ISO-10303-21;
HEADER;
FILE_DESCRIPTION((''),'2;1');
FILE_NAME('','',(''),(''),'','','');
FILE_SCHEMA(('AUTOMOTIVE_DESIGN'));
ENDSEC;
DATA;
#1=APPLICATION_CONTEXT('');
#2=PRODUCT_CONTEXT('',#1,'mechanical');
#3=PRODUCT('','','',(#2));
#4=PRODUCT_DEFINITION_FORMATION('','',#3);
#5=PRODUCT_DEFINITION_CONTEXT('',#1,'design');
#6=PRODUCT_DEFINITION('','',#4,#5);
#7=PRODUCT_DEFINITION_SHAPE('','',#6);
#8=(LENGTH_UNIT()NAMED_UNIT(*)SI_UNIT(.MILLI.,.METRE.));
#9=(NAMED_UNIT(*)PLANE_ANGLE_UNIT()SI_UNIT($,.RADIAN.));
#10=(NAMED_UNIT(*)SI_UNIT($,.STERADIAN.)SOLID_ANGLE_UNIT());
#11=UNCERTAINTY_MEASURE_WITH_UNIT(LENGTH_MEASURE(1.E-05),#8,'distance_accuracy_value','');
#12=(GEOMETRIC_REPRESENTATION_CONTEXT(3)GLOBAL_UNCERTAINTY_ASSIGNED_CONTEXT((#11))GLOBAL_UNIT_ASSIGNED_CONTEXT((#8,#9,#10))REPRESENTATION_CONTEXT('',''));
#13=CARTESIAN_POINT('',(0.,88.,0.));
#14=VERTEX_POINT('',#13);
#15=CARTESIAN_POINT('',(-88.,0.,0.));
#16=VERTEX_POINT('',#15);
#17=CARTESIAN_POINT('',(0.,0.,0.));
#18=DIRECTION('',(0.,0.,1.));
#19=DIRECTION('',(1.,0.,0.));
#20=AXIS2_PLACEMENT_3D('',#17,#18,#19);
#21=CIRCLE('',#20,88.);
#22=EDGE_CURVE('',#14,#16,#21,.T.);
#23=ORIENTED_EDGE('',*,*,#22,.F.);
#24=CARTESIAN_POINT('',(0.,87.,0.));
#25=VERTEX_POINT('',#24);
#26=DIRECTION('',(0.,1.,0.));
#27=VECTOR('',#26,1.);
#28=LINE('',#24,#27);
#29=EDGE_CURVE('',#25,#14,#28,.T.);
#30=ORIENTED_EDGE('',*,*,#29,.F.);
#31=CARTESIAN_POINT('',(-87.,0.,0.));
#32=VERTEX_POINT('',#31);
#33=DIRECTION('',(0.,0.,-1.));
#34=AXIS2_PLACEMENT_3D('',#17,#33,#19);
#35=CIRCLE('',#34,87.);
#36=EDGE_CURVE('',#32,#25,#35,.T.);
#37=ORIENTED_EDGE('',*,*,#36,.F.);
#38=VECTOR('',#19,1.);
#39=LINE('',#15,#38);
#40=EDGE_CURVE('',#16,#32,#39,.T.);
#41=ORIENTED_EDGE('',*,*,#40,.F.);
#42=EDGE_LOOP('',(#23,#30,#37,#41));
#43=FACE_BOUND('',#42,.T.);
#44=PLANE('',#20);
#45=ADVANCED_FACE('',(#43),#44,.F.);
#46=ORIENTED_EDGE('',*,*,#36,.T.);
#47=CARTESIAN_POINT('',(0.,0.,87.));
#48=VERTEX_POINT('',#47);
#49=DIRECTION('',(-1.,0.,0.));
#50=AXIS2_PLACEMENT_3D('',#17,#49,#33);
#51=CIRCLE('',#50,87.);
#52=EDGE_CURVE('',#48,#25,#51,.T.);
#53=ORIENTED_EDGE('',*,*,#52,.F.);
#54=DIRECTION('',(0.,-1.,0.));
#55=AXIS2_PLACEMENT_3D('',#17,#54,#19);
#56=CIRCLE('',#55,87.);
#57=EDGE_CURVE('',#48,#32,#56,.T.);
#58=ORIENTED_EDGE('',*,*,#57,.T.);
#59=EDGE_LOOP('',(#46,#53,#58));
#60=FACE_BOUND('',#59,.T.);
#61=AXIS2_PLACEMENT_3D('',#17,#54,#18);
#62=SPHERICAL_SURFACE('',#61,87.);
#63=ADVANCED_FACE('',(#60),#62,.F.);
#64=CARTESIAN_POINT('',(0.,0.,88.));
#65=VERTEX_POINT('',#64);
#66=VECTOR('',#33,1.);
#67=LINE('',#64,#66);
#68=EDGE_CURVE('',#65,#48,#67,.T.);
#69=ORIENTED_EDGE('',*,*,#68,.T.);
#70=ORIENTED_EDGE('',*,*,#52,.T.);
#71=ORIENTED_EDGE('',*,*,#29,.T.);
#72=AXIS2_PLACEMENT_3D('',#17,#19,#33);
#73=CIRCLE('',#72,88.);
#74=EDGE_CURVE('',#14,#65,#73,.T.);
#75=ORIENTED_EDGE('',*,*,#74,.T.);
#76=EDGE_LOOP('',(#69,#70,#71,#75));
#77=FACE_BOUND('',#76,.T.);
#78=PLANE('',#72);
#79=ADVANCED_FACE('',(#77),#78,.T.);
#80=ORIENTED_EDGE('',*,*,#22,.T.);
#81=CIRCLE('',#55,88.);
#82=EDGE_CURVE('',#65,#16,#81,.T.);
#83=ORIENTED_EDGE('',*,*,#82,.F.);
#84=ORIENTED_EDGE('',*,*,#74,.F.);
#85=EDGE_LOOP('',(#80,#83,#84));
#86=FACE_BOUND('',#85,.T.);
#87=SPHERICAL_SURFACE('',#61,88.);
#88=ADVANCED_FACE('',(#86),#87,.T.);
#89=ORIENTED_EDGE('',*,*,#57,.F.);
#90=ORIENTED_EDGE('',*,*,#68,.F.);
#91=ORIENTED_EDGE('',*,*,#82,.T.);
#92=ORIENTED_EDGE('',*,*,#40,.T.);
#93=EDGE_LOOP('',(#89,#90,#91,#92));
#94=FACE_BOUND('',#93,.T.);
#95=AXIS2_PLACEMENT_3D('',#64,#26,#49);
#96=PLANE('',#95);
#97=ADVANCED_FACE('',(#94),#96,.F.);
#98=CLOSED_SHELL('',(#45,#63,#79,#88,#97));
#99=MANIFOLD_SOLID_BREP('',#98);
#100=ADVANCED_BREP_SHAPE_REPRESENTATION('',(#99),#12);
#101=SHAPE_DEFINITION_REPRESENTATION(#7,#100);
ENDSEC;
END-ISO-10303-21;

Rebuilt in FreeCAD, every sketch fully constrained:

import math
import FreeCAD as App
import Part
import Sketcher

doc = App.newDocument("Part")
body = doc.addObject("PartDesign::Body", "Body")

# Sketch on XY plane
sketch1 = doc.addObject("Sketcher::SketchObject", "Sketch")
body.addObject(sketch1)
sketch1.AttachmentSupport = (doc.XY_Plane, [""])
sketch1.MapMode = "FlatFace"
sketch1.addGeometry([
    Part.LineSegment(App.Vector(0, 87, 0), App.Vector(0, 88, 0)),
    Part.ArcOfCircle(Part.Circle(App.Vector(0, 0, 0), App.Vector(0, 0, 1), 88), math.radians(90), math.radians(180)),
    Part.LineSegment(App.Vector(-88, 0, 0), App.Vector(-87, 0, 0)),
    Part.ArcOfCircle(Part.Circle(App.Vector(0, 0, 0), App.Vector(0, 0, 1), 87), math.radians(90), math.radians(180)),
], False)
sketch1.addConstraint([
    Sketcher.Constraint("Coincident", 0, 2, 1, 1),
    Sketcher.Constraint("Coincident", 1, 2, 2, 1),
    Sketcher.Constraint("Coincident", 2, 2, 3, 2),
    Sketcher.Constraint("Coincident", 3, 1, 0, 1),
    Sketcher.Constraint("Vertical", 0),
    Sketcher.Constraint("Horizontal", 2),
    Sketcher.Constraint("Coincident", 1, 3, -1, 1),
    Sketcher.Constraint("Coincident", 3, 3, -1, 1),
    Sketcher.Constraint("PointOnObject", 0, 2, -2),
    Sketcher.Constraint("PointOnObject", 1, 2, -1),
    Sketcher.Constraint("Radius", 1, 88.0),
    Sketcher.Constraint("Radius", 3, 87.0),
])
revolution = doc.addObject("PartDesign::Revolution", "Revolution")
body.addObject(revolution)
revolution.Profile = sketch1
revolution.ReferenceAxis = (sketch1, ["V_Axis"])
revolution.Angle = 90

doc.recompute()
